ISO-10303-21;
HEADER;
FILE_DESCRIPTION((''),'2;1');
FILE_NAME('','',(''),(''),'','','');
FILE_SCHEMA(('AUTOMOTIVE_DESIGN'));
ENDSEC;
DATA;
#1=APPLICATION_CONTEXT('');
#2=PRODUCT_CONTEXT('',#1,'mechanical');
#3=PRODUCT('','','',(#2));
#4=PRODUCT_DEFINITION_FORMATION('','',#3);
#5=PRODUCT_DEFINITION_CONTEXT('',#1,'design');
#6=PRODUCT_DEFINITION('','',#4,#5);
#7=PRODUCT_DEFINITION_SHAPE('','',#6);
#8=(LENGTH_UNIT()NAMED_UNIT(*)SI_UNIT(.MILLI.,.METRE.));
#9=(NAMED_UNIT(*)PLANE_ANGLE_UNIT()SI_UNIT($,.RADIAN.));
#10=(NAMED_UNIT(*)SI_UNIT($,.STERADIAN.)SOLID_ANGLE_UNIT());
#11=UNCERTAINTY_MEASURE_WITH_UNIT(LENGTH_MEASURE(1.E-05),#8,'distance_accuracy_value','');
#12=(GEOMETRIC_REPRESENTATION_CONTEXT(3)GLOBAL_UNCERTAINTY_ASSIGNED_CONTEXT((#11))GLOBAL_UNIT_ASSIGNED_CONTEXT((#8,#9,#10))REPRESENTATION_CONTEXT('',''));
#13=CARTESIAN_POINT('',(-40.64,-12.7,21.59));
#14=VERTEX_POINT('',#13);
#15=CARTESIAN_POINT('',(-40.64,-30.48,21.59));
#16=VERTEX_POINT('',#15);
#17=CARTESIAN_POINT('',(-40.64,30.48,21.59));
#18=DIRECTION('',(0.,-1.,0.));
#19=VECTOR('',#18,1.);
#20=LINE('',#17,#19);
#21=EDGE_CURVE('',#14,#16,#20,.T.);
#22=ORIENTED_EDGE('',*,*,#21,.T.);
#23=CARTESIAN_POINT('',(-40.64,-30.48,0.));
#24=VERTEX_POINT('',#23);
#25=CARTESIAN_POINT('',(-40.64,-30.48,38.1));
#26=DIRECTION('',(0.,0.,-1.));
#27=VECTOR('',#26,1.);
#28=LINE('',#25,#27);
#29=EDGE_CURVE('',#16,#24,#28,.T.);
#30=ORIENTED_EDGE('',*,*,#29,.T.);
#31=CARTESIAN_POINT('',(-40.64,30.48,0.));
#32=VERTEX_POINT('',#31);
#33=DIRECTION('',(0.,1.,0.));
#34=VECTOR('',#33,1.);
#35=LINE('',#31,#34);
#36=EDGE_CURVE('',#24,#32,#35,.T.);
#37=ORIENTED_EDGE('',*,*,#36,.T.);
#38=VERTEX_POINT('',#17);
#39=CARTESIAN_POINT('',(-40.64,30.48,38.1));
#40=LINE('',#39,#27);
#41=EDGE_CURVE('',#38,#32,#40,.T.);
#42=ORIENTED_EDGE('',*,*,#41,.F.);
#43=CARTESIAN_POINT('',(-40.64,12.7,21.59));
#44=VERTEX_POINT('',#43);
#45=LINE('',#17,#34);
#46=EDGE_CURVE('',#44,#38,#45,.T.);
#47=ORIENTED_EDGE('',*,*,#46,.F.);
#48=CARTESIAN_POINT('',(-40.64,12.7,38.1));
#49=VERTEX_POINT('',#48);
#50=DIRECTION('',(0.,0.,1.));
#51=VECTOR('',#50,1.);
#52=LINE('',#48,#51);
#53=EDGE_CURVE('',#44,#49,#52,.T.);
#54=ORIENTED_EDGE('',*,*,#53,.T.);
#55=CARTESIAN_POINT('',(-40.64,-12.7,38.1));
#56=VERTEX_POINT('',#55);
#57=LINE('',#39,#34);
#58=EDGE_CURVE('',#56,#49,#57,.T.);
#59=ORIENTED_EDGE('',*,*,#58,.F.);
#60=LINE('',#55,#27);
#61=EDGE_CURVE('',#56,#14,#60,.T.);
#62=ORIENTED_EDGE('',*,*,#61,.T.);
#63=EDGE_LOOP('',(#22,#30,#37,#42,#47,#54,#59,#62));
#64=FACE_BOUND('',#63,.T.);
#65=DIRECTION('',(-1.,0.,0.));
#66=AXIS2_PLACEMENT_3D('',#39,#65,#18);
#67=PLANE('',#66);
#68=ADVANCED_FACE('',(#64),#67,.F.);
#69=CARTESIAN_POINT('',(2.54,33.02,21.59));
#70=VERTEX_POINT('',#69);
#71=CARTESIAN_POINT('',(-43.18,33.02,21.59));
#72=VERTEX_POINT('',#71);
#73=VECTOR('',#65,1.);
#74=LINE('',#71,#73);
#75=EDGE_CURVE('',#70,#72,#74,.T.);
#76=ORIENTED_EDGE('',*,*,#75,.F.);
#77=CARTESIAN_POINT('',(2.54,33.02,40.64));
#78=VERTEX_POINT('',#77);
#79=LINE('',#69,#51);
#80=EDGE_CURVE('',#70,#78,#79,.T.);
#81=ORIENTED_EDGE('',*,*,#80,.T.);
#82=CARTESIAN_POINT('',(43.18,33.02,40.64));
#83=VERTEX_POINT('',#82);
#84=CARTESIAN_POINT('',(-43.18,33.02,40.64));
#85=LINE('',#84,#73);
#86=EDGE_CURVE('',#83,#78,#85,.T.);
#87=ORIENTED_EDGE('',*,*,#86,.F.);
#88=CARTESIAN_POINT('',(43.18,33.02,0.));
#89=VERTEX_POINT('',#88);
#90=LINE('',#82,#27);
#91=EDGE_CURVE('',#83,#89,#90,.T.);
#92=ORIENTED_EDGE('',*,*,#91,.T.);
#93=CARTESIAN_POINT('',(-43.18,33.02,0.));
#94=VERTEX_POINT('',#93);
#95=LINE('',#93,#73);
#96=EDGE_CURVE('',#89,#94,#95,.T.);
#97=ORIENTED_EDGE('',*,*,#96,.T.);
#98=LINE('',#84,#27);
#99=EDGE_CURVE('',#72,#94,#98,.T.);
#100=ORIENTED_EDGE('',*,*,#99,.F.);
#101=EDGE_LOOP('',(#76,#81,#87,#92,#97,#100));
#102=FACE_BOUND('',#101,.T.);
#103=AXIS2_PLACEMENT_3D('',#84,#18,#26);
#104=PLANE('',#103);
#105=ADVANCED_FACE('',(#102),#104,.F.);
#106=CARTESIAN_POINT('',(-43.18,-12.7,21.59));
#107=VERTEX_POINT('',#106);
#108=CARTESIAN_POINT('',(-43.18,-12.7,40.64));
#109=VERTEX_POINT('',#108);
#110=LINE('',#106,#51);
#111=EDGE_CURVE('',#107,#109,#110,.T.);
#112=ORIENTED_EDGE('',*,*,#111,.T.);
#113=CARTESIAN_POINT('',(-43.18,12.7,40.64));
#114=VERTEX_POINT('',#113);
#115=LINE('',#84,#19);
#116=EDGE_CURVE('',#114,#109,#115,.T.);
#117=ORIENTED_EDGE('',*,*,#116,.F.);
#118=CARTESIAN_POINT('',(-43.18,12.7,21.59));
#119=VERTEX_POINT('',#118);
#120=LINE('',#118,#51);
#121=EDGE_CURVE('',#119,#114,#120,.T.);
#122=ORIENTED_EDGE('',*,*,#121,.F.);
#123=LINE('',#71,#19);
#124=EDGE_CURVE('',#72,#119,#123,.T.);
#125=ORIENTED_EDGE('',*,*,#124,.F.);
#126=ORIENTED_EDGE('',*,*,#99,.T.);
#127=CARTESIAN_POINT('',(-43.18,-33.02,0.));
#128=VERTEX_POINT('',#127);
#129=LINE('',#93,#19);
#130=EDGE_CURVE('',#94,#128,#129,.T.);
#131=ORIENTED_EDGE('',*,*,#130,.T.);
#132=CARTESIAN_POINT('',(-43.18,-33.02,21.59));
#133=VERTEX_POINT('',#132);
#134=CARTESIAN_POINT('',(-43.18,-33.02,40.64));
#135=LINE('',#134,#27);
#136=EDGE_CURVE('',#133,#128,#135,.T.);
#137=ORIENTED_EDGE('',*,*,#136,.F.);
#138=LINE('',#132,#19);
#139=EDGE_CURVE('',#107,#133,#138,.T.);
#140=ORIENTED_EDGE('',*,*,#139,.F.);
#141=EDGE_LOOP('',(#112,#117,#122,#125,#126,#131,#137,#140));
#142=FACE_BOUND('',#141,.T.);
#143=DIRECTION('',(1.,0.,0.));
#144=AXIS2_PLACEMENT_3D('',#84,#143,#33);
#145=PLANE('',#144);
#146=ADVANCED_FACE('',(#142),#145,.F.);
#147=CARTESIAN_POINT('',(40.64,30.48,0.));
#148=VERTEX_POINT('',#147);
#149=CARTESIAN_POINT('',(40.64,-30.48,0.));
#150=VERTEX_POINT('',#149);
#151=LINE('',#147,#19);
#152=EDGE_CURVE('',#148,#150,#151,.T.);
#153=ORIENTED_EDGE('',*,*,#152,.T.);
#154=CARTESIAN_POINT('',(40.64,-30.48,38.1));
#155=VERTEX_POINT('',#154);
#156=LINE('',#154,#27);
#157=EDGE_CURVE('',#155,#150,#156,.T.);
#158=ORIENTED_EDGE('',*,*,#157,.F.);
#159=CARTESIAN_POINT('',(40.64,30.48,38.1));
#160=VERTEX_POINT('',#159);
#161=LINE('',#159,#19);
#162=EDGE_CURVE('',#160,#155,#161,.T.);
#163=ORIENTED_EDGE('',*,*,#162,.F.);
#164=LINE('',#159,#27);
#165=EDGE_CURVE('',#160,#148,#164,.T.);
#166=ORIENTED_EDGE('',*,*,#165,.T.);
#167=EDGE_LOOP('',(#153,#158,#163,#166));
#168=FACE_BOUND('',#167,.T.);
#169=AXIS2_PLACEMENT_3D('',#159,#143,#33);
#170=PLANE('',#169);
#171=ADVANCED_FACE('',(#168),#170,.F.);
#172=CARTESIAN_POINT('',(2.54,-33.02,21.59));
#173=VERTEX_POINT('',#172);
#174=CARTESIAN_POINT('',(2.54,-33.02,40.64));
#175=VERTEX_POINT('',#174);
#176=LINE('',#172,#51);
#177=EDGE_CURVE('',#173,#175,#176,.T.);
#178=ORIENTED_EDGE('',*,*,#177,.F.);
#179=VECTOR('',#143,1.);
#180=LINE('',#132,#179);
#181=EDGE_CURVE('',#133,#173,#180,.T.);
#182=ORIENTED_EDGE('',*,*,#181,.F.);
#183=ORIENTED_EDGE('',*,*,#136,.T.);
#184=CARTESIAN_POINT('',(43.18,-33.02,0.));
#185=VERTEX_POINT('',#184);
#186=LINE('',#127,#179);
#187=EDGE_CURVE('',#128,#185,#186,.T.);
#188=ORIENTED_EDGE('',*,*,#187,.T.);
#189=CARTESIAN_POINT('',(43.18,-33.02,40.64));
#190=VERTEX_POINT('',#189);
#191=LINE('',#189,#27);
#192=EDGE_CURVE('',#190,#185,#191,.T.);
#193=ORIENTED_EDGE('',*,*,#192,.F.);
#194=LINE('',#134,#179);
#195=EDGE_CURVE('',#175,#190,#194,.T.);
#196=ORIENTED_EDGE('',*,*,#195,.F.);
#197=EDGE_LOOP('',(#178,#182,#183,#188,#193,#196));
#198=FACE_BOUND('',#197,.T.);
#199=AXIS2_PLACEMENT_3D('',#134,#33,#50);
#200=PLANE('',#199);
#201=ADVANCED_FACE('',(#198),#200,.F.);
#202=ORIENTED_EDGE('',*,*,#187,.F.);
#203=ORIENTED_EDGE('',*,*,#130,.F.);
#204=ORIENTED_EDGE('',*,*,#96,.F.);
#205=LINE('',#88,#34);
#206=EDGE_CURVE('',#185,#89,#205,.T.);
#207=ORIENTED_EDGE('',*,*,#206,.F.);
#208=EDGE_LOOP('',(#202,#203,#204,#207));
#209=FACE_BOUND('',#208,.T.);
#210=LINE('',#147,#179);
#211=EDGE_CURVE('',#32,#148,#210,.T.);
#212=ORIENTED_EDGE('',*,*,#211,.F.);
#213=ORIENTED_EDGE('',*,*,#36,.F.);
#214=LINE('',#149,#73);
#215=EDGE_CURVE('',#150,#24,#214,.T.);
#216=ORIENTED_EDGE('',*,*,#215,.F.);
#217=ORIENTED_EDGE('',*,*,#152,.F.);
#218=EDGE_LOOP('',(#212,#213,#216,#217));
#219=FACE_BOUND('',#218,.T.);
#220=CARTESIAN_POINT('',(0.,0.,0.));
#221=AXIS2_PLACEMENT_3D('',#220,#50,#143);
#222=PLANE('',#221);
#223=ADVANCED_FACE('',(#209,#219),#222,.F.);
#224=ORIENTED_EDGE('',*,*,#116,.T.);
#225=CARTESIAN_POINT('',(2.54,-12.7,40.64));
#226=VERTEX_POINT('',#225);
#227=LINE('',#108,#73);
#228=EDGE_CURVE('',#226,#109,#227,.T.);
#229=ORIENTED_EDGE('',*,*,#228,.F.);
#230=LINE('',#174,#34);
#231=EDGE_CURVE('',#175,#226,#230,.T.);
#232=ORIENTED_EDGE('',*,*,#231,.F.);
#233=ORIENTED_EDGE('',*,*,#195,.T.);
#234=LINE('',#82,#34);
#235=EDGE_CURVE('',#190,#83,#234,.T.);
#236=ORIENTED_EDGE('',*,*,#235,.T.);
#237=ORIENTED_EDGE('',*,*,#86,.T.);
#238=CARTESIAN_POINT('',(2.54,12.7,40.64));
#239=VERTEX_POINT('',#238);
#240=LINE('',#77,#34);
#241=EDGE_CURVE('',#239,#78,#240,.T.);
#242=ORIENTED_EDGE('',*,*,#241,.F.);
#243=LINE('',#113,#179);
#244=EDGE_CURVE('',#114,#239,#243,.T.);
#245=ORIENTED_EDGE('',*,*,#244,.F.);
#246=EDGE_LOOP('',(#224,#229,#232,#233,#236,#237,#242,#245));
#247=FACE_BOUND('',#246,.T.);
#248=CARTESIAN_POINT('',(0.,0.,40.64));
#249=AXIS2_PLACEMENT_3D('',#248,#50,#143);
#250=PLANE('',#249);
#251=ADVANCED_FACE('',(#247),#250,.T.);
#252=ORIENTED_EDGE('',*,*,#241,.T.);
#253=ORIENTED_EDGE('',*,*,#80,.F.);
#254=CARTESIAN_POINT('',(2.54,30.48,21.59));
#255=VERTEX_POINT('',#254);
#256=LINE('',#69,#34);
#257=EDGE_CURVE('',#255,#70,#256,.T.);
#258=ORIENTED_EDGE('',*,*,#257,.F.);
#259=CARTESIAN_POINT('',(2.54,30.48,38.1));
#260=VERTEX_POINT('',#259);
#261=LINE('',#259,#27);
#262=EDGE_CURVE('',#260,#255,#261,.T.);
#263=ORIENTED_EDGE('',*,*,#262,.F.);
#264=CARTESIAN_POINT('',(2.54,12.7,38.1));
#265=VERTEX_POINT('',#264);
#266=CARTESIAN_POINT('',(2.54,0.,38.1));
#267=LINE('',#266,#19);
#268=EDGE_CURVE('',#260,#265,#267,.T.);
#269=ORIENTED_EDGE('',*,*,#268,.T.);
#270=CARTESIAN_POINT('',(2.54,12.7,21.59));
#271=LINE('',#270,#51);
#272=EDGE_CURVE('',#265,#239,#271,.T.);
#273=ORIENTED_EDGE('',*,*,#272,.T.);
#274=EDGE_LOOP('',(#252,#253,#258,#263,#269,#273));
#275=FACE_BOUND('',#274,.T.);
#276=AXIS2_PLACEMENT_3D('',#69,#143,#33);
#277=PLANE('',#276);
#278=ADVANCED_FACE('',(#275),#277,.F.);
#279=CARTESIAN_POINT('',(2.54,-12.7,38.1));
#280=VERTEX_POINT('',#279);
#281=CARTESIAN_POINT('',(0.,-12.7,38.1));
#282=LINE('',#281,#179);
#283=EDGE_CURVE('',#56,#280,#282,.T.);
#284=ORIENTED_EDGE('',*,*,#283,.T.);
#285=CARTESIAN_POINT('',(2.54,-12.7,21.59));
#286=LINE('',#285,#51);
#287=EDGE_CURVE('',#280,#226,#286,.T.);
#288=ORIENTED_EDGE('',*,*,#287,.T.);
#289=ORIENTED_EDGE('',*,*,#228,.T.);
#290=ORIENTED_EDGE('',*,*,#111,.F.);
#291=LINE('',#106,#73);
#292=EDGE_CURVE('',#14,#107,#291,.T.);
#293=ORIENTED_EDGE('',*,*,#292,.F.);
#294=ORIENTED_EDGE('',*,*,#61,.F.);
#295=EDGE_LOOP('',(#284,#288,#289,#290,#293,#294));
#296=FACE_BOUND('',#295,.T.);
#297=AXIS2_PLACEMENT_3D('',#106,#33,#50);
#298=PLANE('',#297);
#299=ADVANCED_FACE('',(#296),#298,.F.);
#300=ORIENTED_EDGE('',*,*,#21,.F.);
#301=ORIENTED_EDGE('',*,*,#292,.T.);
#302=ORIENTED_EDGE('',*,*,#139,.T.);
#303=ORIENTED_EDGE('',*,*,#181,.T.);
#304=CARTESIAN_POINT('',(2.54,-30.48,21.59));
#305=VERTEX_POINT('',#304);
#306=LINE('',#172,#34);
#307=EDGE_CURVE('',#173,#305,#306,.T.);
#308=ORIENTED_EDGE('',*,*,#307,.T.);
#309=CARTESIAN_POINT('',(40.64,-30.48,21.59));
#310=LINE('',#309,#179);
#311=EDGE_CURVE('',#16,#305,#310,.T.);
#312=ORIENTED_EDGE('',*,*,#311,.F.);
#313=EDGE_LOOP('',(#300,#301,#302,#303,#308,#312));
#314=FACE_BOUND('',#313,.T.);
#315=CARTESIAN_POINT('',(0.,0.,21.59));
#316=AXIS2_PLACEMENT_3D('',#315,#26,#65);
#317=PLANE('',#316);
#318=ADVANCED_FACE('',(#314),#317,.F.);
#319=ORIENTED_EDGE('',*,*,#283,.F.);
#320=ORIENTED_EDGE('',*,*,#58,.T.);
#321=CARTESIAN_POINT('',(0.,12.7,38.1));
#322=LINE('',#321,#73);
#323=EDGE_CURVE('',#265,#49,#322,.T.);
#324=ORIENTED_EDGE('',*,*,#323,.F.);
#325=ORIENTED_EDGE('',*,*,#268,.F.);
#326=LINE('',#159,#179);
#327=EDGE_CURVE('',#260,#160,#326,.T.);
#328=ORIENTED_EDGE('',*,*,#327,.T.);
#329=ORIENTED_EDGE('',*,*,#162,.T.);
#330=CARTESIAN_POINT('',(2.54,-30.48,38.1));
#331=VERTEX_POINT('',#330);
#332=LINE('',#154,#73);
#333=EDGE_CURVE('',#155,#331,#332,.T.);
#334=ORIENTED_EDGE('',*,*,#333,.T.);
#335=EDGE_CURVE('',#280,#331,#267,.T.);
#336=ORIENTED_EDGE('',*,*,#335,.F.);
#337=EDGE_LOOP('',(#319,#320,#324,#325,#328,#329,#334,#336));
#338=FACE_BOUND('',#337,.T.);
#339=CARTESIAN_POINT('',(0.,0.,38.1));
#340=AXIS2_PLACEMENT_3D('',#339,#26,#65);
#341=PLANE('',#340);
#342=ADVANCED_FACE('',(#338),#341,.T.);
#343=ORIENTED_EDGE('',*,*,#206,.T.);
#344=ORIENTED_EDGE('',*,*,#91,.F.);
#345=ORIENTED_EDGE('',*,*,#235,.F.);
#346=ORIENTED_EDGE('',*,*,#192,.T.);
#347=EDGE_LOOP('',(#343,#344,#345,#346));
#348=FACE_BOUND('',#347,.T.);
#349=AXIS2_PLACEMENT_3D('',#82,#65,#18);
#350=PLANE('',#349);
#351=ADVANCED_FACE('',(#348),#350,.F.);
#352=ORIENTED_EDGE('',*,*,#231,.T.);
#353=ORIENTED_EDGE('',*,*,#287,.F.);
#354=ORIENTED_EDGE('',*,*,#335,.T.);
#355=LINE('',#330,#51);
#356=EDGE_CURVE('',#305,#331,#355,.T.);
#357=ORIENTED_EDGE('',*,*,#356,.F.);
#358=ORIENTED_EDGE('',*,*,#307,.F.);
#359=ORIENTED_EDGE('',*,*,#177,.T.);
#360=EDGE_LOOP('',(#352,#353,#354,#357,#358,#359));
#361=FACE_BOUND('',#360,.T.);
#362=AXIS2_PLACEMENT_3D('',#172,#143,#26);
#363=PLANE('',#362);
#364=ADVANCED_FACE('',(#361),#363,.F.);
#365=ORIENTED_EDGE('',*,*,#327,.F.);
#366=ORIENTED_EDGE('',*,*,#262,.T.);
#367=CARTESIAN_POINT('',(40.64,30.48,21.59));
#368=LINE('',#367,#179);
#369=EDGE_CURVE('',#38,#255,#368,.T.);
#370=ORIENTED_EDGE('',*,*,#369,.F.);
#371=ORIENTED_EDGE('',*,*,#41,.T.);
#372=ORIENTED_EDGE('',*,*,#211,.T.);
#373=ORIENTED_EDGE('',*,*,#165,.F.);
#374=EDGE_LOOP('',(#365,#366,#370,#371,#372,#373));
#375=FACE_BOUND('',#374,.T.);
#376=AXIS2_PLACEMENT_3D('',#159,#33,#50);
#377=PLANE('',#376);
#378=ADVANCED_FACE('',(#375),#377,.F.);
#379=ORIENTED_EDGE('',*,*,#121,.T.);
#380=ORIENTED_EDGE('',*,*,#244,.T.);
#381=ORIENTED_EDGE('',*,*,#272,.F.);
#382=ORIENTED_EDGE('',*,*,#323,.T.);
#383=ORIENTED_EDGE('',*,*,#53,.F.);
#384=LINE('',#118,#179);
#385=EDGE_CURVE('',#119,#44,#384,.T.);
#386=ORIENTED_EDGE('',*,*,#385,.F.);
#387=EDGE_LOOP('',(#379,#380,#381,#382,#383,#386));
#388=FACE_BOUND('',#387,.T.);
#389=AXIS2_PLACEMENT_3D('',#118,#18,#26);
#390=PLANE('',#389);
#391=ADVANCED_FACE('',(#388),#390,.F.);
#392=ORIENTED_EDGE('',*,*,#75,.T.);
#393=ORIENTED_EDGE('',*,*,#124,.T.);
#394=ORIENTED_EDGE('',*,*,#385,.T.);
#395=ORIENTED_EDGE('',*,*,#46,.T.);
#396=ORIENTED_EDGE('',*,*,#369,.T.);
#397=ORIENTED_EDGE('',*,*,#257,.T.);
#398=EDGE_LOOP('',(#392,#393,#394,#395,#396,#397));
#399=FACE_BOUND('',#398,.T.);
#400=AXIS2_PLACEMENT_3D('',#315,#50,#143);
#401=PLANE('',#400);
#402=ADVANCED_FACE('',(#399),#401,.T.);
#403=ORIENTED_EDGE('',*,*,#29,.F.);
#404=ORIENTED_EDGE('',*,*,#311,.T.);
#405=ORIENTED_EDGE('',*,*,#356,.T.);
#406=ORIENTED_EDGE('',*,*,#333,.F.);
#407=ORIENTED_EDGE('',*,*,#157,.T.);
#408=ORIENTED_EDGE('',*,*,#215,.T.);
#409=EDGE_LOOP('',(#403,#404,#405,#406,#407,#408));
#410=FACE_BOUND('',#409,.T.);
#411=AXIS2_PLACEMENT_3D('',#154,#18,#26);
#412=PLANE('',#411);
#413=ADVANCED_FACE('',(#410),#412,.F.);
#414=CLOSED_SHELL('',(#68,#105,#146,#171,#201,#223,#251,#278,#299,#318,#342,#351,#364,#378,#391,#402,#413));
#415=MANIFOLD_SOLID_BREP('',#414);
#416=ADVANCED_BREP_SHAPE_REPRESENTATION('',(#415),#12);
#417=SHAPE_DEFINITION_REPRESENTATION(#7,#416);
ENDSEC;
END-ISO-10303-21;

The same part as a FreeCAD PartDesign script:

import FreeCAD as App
import Part
import Sketcher
from FreeCAD import Vector
Q = App.Units.Quantity


def add_polygon(sketch, points):
    """Adds a closed chain of lines whose ends are joined by coincident constraints."""
    first, n = sketch.GeometryCount, len(points)
    for a, b in zip(points, points[1:] + points[:1]):
        sketch.addGeometry(Part.LineSegment(App.Vector(*a, 0), App.Vector(*b, 0)), False)
    for i in range(n):
        sketch.addConstraint(Sketcher.Constraint("Coincident", first + i, 2, first + (i + 1) % n, 1))

doc = App.newDocument("Part")
body = doc.addObject("PartDesign::Body", "Body")

sketch1 = body.newObject("Sketcher::SketchObject", "Sketch")
sketch1.AttachmentSupport = (doc.getObject("XY_Plane"), [""])
sketch1.MapMode = "FlatFace"
add_polygon(sketch1, [(-43, 33), (-43, -33), (43, -33), (43, 33)])
sketch1.addConstraint([
    Sketcher.Constraint("Vertical", 0),
    Sketcher.Constraint("Horizontal", 1),
    Sketcher.Constraint("Vertical", 2),
    Sketcher.Constraint("Horizontal", 3),
    Sketcher.Constraint("Symmetric", 0, 2, 2, 2, -1, 1),
    Sketcher.Constraint("DistanceX", 1, 1, 1, 2, Q("3.4 in")),
    Sketcher.Constraint("DistanceY", 0, 2, 0, 1, Q("2.6 in")),
])
pad1 = body.newObject("PartDesign::Pad", "Pad")
pad1.Profile = sketch1
pad1.Length = Q("1.6 in")

sketch2 = body.newObject("Sketcher::SketchObject", "Sketch001")
sketch2.AttachmentSupport = (doc.getObject("XY_Plane"), [""])
sketch2.MapMode = "FlatFace"
add_polygon(sketch2, [(41, 30), (41, -30), (-41, -30), (-41, 30)])
sketch2.addConstraint([
    Sketcher.Constraint("Vertical", 0),
    Sketcher.Constraint("Horizontal", 1),
    Sketcher.Constraint("Vertical", 2),
    Sketcher.Constraint("Horizontal", 3),
    Sketcher.Constraint("Symmetric", 0, 2, 2, 2, -1, 1),
    Sketcher.Constraint("DistanceX", 1, 2, 1, 1, Q("3.2 in")),
    Sketcher.Constraint("DistanceY", 0, 2, 0, 1, Q("2.4 in")),
])
pocket1 = body.newObject("PartDesign::Pocket", "Pocket")
pocket1.Profile = sketch2
pocket1.Length = Q("1.5 in")
pocket1.Reversed = True

sketch3 = body.newObject("Sketcher::SketchObject", "Sketch002")
sketch3.AttachmentSupport = (doc.getObject("XY_Plane"), [""])
sketch3.MapMode = "FlatFace"
sketch3.AttachmentOffset = App.Placement(Vector(0, 0, 1.6 * 25.4), App.Rotation())
add_polygon(sketch3, [(-43, 33), (-43, 13), (3, 13), (3, 33)])
sketch3.addConstraint([
    Sketcher.Constraint("Vertical", 0),
    Sketcher.Constraint("Horizontal", 1),
    Sketcher.Constraint("Vertical", 2),
    Sketcher.Constraint("Horizontal", 3),
    Sketcher.Constraint("DistanceX", 1, 1, 1, 2, Q("1.8 in")),
    Sketcher.Constraint("DistanceY", 0, 2, 0, 1, Q("0.8 in")),
    Sketcher.Constraint("DistanceX", 0, 2, -1, 1, Q("1.7 in")),
    Sketcher.Constraint("DistanceY", -1, 1, 0, 2, Q("0.5 in")),
])
pocket2 = body.newObject("PartDesign::Pocket", "Pocket001")
pocket2.Profile = sketch3
pocket2.Length = Q("0.75 in")

sketch4 = body.newObject("Sketcher::SketchObject", "Sketch003")
sketch4.AttachmentSupport = (doc.getObject("XY_Plane"), [""])
sketch4.MapMode = "FlatFace"
sketch4.AttachmentOffset = App.Placement(Vector(0, 0, 1.6 * 25.4), App.Rotation())
add_polygon(sketch4, [(-43, -13), (-43, -33), (3, -33), (3, -13)])
sketch4.addConstraint([
    Sketcher.Constraint("Vertical", 0),
    Sketcher.Constraint("Horizontal", 1),
    Sketcher.Constraint("Vertical", 2),
    Sketcher.Constraint("Horizontal", 3),
    Sketcher.Constraint("DistanceX", 1, 1, 1, 2, Q("1.8 in")),
    Sketcher.Constraint("DistanceY", 0, 2, 0, 1, Q("0.8 in")),
    Sketcher.Constraint("DistanceX", 0, 2, -1, 1, Q("1.7 in")),
    Sketcher.Constraint("DistanceY", 0, 2, -1, 1, Q("1.3 in")),
])
pocket3 = body.newObject("PartDesign::Pocket", "Pocket002")
pocket3.Profile = sketch4
pocket3.Length = Q("0.75 in")

doc.recompute()
